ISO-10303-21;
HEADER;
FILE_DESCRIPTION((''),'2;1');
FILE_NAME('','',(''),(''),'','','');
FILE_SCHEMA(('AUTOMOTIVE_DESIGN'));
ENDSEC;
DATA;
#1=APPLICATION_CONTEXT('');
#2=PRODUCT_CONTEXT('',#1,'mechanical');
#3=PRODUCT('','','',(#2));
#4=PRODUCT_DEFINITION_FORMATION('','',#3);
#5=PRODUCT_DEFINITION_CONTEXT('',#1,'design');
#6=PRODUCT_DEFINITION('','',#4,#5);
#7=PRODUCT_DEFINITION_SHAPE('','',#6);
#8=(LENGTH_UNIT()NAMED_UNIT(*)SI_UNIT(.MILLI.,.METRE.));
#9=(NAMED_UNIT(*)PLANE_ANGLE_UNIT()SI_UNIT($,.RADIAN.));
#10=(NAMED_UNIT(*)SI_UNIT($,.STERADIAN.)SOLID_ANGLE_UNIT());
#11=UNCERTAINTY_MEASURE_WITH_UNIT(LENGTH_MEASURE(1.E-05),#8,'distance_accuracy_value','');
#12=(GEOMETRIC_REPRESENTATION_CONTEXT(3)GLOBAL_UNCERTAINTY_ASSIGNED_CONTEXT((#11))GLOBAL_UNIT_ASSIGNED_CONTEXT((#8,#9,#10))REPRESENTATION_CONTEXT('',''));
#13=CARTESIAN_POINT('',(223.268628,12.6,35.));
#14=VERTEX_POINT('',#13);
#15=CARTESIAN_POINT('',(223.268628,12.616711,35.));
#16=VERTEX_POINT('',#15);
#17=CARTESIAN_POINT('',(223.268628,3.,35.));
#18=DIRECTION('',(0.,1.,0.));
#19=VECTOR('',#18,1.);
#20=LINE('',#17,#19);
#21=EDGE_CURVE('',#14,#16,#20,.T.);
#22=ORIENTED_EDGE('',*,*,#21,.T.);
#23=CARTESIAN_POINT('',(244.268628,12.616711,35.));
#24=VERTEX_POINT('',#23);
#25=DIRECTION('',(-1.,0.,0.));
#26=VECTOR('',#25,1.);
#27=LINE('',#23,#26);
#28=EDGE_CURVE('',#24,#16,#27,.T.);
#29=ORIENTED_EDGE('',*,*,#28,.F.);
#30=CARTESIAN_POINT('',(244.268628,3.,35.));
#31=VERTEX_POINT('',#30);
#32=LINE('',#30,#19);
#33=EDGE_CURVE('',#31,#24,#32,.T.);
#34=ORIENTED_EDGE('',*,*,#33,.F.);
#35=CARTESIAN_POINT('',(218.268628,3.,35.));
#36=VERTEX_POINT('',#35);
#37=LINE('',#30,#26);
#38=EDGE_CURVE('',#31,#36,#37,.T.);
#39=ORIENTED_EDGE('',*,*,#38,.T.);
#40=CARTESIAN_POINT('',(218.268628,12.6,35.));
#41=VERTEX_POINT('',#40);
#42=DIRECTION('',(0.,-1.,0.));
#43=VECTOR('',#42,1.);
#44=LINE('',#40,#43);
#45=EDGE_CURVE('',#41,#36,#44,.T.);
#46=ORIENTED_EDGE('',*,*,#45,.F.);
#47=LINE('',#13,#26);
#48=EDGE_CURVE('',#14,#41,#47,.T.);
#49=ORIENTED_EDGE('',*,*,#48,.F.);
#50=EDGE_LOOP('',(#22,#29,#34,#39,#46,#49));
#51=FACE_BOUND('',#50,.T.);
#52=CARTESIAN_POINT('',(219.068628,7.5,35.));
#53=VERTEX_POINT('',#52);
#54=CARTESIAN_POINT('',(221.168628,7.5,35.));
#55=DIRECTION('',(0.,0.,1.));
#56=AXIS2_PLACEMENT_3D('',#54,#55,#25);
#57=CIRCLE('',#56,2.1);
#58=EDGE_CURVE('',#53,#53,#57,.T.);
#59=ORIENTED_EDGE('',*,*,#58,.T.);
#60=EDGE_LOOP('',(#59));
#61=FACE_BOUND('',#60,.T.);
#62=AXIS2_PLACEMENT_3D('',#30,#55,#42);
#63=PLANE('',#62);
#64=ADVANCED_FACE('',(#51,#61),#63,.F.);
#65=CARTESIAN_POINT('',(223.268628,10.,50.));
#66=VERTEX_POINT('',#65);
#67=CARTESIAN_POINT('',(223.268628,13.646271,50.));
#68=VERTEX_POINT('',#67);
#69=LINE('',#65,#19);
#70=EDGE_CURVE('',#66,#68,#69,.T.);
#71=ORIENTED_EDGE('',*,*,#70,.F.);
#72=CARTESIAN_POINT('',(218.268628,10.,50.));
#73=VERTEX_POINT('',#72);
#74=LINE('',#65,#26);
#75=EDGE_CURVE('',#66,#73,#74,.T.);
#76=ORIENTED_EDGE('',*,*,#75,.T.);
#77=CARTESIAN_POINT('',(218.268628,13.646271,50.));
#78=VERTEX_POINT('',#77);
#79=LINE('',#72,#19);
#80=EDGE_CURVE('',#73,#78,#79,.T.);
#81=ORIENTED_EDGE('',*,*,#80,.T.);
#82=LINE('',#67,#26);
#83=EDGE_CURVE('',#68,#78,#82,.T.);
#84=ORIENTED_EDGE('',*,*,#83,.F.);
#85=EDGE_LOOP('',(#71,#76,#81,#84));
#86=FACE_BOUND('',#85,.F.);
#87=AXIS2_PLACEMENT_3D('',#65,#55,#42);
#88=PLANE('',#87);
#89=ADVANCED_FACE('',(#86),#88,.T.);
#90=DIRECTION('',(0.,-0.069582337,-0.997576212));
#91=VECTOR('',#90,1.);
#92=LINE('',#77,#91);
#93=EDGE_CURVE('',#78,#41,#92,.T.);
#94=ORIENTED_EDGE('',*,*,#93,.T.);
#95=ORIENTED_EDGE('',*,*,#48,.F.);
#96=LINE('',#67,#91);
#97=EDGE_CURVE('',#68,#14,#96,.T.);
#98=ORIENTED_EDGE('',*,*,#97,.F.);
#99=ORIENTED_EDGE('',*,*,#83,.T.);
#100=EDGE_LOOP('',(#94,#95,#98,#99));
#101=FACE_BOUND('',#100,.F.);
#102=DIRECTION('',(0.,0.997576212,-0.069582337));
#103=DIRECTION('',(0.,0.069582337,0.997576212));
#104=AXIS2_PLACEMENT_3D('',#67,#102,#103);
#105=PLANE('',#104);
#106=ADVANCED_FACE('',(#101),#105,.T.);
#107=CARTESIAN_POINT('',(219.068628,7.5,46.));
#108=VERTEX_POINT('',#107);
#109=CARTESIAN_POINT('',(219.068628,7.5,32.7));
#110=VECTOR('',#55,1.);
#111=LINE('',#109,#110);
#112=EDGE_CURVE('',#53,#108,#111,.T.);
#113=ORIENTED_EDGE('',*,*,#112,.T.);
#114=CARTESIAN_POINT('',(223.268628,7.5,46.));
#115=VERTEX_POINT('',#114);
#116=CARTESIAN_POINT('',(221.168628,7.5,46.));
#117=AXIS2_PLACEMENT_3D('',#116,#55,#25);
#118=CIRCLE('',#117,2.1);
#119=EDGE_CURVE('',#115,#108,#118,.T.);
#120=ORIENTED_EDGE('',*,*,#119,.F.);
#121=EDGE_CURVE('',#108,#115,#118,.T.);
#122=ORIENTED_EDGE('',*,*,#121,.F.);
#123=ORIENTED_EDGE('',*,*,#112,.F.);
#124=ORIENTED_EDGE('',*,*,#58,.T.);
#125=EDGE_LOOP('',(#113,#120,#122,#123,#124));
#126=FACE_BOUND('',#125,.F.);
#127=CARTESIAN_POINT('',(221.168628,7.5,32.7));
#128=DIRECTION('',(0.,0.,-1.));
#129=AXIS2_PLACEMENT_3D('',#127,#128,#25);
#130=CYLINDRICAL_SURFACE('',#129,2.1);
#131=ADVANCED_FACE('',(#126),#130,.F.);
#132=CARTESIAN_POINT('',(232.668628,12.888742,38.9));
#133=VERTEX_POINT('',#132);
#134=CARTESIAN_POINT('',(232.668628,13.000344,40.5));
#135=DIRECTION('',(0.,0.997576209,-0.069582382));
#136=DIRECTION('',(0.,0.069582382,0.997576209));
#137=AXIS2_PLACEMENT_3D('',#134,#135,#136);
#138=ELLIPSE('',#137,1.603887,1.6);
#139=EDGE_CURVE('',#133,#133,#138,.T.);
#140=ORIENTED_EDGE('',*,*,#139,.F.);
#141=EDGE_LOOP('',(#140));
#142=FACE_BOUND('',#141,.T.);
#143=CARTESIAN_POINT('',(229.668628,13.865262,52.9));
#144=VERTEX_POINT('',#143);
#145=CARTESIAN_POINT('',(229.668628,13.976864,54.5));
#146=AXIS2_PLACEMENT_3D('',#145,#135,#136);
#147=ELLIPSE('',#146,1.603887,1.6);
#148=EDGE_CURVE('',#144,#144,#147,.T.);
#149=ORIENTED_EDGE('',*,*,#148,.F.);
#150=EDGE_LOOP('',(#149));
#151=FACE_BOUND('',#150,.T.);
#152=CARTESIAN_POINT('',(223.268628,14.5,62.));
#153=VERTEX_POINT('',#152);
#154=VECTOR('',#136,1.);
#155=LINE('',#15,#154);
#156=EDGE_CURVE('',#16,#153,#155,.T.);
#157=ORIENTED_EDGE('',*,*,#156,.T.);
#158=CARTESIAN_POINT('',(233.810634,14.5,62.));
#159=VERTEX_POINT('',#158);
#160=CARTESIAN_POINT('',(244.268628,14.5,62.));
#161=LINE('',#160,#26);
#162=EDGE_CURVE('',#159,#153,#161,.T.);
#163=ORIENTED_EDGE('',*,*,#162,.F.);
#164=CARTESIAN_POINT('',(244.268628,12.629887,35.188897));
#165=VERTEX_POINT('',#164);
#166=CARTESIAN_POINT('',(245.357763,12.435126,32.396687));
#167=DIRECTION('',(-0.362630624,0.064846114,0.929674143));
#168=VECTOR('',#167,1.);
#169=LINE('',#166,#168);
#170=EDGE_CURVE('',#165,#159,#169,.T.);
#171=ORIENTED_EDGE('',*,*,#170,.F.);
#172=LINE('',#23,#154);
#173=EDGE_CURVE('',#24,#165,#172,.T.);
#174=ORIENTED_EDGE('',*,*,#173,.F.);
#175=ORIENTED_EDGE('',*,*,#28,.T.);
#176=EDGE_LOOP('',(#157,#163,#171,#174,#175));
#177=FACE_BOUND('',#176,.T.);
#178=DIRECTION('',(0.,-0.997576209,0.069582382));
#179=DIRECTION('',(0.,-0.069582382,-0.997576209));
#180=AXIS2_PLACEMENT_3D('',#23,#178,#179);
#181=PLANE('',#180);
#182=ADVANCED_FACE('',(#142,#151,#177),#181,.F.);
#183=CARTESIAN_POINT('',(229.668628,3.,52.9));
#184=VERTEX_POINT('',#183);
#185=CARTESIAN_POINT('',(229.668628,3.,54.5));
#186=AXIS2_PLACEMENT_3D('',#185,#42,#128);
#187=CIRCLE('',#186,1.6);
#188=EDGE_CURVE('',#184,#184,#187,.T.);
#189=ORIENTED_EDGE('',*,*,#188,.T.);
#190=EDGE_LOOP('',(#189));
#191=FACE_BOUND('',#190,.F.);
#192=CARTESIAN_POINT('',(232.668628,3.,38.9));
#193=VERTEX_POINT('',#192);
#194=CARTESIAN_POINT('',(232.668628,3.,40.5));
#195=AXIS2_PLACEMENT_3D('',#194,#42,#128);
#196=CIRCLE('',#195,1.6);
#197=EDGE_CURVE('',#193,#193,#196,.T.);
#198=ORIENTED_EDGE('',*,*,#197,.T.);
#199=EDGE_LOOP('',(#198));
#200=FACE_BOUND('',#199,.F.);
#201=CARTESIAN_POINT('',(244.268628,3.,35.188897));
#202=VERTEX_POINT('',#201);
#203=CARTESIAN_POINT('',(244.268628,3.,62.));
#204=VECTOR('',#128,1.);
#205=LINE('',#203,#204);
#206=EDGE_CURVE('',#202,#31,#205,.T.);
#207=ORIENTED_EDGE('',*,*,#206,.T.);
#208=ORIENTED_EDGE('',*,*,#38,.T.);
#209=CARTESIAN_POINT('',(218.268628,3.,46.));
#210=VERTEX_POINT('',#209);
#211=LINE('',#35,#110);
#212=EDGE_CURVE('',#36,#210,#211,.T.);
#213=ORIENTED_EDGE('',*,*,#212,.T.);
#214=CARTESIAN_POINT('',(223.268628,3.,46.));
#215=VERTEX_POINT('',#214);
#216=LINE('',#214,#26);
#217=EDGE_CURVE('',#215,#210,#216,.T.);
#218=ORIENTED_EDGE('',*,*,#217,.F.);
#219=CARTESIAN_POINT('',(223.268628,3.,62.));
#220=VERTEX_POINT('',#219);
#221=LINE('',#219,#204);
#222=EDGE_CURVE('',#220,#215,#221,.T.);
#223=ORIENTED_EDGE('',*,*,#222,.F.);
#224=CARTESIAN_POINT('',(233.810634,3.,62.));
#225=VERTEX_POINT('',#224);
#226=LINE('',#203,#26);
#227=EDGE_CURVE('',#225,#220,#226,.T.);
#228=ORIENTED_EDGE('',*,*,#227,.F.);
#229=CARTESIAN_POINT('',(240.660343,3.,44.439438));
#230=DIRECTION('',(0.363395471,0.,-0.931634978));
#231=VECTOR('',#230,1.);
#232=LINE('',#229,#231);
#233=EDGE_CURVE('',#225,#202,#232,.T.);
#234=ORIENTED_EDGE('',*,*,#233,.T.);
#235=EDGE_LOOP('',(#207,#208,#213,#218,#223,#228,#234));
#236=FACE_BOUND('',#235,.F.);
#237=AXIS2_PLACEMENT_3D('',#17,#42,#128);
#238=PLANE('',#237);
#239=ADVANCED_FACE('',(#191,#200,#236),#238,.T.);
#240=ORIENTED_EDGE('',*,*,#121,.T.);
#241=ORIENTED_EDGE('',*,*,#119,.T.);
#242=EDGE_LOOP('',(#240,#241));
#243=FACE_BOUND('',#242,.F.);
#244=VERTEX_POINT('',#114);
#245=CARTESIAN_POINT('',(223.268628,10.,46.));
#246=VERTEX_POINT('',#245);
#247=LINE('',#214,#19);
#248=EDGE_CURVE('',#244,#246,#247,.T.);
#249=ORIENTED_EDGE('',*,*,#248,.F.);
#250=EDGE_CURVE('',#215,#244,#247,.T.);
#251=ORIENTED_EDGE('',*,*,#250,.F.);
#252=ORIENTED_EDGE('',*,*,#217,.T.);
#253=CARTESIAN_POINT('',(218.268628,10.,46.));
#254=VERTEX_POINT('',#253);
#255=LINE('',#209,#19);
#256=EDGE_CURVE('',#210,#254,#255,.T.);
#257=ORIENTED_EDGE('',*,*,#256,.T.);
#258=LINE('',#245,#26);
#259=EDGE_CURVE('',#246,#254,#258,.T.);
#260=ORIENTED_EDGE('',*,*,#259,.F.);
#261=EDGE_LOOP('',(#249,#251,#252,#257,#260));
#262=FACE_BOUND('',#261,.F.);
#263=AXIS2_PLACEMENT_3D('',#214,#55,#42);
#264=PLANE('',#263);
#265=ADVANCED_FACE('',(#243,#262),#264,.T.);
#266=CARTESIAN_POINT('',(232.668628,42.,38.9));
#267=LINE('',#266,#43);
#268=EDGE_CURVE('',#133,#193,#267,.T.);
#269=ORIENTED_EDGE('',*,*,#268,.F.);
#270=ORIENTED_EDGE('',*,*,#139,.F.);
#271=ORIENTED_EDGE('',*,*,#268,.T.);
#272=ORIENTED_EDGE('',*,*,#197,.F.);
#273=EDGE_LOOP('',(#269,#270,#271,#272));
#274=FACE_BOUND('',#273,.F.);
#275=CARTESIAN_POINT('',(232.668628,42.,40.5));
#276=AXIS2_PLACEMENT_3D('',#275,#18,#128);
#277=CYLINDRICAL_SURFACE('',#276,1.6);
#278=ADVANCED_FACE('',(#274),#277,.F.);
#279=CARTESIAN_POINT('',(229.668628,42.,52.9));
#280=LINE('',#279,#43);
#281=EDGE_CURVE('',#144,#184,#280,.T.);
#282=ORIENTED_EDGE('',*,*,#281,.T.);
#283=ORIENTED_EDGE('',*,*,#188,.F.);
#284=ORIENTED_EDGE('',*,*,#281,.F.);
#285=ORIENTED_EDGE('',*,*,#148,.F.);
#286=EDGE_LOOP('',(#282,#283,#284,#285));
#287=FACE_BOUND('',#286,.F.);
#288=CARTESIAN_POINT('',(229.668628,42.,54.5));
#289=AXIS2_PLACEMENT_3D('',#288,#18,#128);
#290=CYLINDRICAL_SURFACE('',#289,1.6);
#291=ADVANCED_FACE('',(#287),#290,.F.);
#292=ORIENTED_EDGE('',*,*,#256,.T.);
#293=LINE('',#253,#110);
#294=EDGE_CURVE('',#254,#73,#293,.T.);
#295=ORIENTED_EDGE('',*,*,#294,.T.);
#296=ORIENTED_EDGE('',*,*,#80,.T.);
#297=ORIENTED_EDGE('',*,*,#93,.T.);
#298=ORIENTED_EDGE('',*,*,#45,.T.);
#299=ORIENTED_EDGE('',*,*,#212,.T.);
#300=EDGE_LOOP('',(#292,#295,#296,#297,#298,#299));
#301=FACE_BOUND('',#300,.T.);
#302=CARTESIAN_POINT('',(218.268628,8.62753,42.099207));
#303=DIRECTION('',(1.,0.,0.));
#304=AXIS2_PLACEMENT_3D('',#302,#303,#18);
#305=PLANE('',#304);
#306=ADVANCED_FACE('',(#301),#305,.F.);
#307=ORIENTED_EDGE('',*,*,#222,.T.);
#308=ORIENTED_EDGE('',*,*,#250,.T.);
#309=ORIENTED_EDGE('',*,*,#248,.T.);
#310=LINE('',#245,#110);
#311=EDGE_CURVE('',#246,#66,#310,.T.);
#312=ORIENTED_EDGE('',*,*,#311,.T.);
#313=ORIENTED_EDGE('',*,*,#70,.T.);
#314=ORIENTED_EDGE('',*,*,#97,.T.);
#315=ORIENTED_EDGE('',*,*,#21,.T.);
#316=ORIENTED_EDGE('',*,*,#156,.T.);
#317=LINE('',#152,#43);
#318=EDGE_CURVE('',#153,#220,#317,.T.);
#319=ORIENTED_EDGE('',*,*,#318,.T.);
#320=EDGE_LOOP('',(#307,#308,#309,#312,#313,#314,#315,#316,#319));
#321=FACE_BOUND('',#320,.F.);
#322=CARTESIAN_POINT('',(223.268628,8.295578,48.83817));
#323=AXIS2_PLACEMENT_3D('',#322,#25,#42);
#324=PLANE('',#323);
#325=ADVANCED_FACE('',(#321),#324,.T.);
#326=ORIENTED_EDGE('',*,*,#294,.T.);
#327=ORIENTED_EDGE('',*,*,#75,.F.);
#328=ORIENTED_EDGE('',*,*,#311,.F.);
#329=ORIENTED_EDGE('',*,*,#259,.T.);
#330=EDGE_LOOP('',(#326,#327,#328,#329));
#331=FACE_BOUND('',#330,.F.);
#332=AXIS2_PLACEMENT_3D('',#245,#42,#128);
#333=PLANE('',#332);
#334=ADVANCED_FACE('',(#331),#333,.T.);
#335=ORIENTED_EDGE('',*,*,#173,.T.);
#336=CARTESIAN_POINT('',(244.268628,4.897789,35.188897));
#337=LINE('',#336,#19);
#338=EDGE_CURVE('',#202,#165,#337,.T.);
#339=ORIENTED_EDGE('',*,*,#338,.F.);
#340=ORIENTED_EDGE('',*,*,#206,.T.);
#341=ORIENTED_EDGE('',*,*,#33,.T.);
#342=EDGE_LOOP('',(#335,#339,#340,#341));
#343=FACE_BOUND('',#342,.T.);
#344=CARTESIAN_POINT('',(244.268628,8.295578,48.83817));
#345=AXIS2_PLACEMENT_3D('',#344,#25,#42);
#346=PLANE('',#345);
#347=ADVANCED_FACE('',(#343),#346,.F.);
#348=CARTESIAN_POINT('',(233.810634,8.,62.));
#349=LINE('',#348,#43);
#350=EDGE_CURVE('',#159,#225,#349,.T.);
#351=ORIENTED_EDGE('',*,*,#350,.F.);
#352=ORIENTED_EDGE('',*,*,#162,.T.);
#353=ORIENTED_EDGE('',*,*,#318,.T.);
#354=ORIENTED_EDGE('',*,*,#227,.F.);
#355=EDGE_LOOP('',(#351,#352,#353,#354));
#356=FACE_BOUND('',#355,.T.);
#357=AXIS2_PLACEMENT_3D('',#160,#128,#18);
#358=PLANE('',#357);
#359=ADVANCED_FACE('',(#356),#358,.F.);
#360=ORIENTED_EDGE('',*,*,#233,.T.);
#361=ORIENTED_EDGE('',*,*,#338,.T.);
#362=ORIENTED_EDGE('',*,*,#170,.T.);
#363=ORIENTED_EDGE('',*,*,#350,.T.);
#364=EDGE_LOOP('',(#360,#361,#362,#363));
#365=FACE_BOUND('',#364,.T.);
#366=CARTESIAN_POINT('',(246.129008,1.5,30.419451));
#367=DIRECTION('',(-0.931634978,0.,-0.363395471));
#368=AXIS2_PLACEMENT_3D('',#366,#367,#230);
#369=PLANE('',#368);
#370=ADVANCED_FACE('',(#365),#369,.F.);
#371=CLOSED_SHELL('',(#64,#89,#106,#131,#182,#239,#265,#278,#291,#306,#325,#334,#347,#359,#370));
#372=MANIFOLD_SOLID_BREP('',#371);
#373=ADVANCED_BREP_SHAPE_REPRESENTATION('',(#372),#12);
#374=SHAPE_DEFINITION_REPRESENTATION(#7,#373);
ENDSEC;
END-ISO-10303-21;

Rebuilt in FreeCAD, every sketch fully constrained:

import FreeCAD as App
import Part
import Sketcher
Q = App.Units.Quantity


def add_polygon(sketch, points):
    """Adds a closed chain of lines whose ends are joined by coincident constraints."""
    first, n = sketch.GeometryCount, len(points)
    for a, b in zip(points, points[1:] + points[:1]):
        sketch.addGeometry(Part.LineSegment(App.Vector(*a, 0), App.Vector(*b, 0)), False)
    for i in range(n):
        sketch.addConstraint(Sketcher.Constraint("Coincident", first + i, 2, first + (i + 1) % n, 1))

doc = App.newDocument("Part")
params = doc.addObject("Spreadsheet::Sheet", "Params")
for row, (alias, value) in enumerate([
    ("sketch1_diameter", "3.2 mm"),
    ("pad1_length", "40 mm"),
    ("sketch2_diameter", "3.2 mm"),
    ("pad2_length", "40 mm"),
    ("sketch3_diameter", "4.2 mm"),
    ("pad3_length", "19 mm"),
    ("sketch4_width", "7 mm"),
    ("sketch4_height", "11 mm"),
    ("sketch4_height2", "4 mm"),
    ("sketch4_width2", "9.6 mm"),
    ("pad4_length", "5 mm"),
    ("pad5_length", "15 mm"),
    ("sketch6_height", "27 mm"),
    ("sketch6_width", "11.5 mm"),
    ("pad6_length", "21 mm"),
], start=1):
    params.set(f"A{row}", alias)
    params.set(f"B{row}", "=" + value)
    params.setAlias(f"B{row}", alias)

body = doc.addObject("PartDesign::Body", "Body")

sketch1 = doc.addObject("Sketcher::SketchObject", "Sketch")
body.addObject(sketch1)
sketch1.AttachmentSupport = (doc.XZ_Plane, [""])
sketch1.MapMode = "FlatFace"
sketch1.AttachmentOffset = App.Placement(App.Vector(0, 0, -42), App.Rotation())
sketch1.addGeometry(Part.Circle(App.Vector(5.3, 40.5, 0), App.Vector(0, 0, 1), 1.6), False)
sketch1.addConstraint(Sketcher.Constraint("Diameter", 0, Q("3.2 mm")))
sketch1.addConstraint(Sketcher.Constraint("DistanceX", -1, 1, 0, 3, Q("5.3 mm")))
sketch1.addConstraint(Sketcher.Constraint("DistanceY", -1, 1, 0, 3, Q("40.5 mm")))
sketch1.setExpression("Constraints[0]", "Params.sketch1_diameter")
pad1 = doc.addObject("PartDesign::Pad", "Pad")
body.addObject(pad1)
pad1.Profile = sketch1
pad1.setExpression("Length", "Params.pad1_length")
body2 = doc.addObject("PartDesign::Body", "Body001")

sketch2 = doc.addObject("Sketcher::SketchObject", "Sketch001")
body2.addObject(sketch2)
sketch2.AttachmentSupport = (doc.getObject("XZ_Plane001"), [""])
sketch2.MapMode = "FlatFace"
sketch2.AttachmentOffset = App.Placement(App.Vector(0, 0, -42), App.Rotation())
sketch2.addGeometry(Part.Circle(App.Vector(8.3, 54.5, 0), App.Vector(0, 0, 1), 1.6), False)
sketch2.addConstraint(Sketcher.Constraint("Diameter", 0, Q("3.2 mm")))
sketch2.addConstraint(Sketcher.Constraint("DistanceX", -1, 1, 0, 3, Q("8.3 mm")))
sketch2.addConstraint(Sketcher.Constraint("DistanceY", -1, 1, 0, 3, Q("54.5 mm")))
sketch2.setExpression("Constraints[0]", "Params.sketch2_diameter")
pad2 = doc.addObject("PartDesign::Pad", "Pad001")
body2.addObject(pad2)
pad2.Profile = sketch2
pad2.setExpression("Length", "Params.pad2_length")
body3 = doc.addObject("PartDesign::Body", "Body002")

sketch3 = doc.addObject("Sketcher::SketchObject", "Sketch002")
body3.addObject(sketch3)
sketch3.AttachmentSupport = (doc.getObject("XY_Plane002"), [""])
sketch3.MapMode = "FlatFace"
sketch3.AttachmentOffset = App.Placement(App.Vector(0, 0, 32.7), App.Rotation())
sketch3.addGeometry(Part.Circle(App.Vector(16.8, 7.5, 0), App.Vector(0, 0, 1), 2.1), False)
sketch3.addConstraint(Sketcher.Constraint("Diameter", 0, Q("4.2 mm")))
sketch3.addConstraint(Sketcher.Constraint("DistanceX", -1, 1, 0, 3, Q("16.8 mm")))
sketch3.addConstraint(Sketcher.Constraint("DistanceY", -1, 1, 0, 3, Q("7.5 mm")))
sketch3.setExpression("Constraints[0]", "Params.sketch3_diameter")
pad3 = doc.addObject("PartDesign::Pad", "Pad002")
body3.addObject(pad3)
pad3.Profile = sketch3
pad3.setExpression("Length", "Params.pad3_length")
body4 = doc.addObject("PartDesign::Body", "Body003")

sketch4 = doc.addObject("Sketcher::SketchObject", "Sketch003")
body4.addObject(sketch4)
sketch4.AttachmentSupport = (doc.getObject("YZ_Plane003"), [""])
sketch4.MapMode = "FlatFace"
add_polygon(sketch4, [(10, 46), (3, 46), (3, 35), (12.6, 35), (13.646271, 50), (10, 50)])
sketch4.addConstraint(Sketcher.Constraint("Horizontal", 0))
sketch4.addConstraint(Sketcher.Constraint("Vertical", 1))
sketch4.addConstraint(Sketcher.Constraint("Horizontal", 2))
sketch4.addConstraint(Sketcher.Constraint("Horizontal", 4))
sketch4.addConstraint(Sketcher.Constraint("Vertical", 5))
sketch4.addConstraint(Sketcher.Constraint("DistanceX", 0, 2, 0, 1, Q("7 mm")))
sketch4.addConstraint(Sketcher.Constraint("DistanceY", 1, 2, 1, 1, Q("11 mm")))
sketch4.addConstraint(Sketcher.Constraint("DistanceY", 5, 2, 5, 1, Q("4 mm")))
sketch4.addConstraint(Sketcher.Constraint("DistanceX", 2, 1, 2, 2, Q("9.6 mm")))
sketch4.addConstraint(Sketcher.Constraint("DistanceX", -1, 1, 0, 2, Q("3 mm")))
sketch4.addConstraint(Sketcher.Constraint("DistanceY", -1, 1, 0, 2, Q("46 mm")))
sketch4.addConstraint(Sketcher.Constraint("Angle", 3, Q("86.010002 deg")))
sketch4.setExpression("Constraints[11]", "Params.sketch4_width")
sketch4.setExpression("Constraints[12]", "Params.sketch4_height")
sketch4.setExpression("Constraints[13]", "Params.sketch4_height2")
sketch4.setExpression("Constraints[14]", "Params.sketch4_width2")
pad4 = doc.addObject("PartDesign::Pad", "Pad003")
body4.addObject(pad4)
pad4.Profile = sketch4
pad4.setExpression("Length", "Params.pad4_length")
body5 = doc.addObject("PartDesign::Body", "Body004")
doc.recompute()

body4.Placement = App.Placement(App.Vector(14.7, 0, 0), App.Rotation(App.Vector(0, 0, 1), 0))
boolean = doc.addObject("PartDesign::Boolean", "Boolean")
body5.addObject(boolean)
boolean.Type = "Fuse"
boolean.addObjects([body4])
doc.recompute()

boolean2 = doc.addObject("PartDesign::Boolean", "Boolean001")
body5.addObject(boolean2)
boolean2.Type = "Cut"
boolean2.addObjects([body3])
body6 = doc.addObject("PartDesign::Body", "Body005")

sketch5 = doc.addObject("Sketcher::SketchObject", "Sketch004")
body6.addObject(sketch5)
sketch5.AttachmentSupport = (doc.getObject("XZ_Plane005"), [""])
sketch5.MapMode = "FlatFace"
add_polygon(sketch5, [(-8.16038, 62.64716), (-8.16038, 30.419451), (4.410427, 62.64716)])
sketch5.addConstraint(Sketcher.Constraint("Vertical", 0))
sketch5.addConstraint(Sketcher.Constraint("Horizontal", 2))
sketch5.addConstraint(Sketcher.Constraint("DistanceY", 0, 2, 0, 1, Q("32.227709 mm")))
sketch5.addConstraint(Sketcher.Constraint("DistanceX", 2, 2, 2, 1, Q("12.570807 mm")))
sketch5.addConstraint(Sketcher.Constraint("DistanceX", 0, 2, -1, 1, Q("8.16038 mm")))
sketch5.addConstraint(Sketcher.Constraint("DistanceY", -1, 1, 0, 2, Q("30.419451 mm")))
pad5 = doc.addObject("PartDesign::Pad", "Pad004")
body6.addObject(pad5)
pad5.Profile = sketch5
pad5.setExpression("Length", "Params.pad5_length")
pad5.Reversed = True
body7 = doc.addObject("PartDesign::Body", "Body006")
doc.recompute()

body6.Placement = App.Placement(App.Vector(0, 1.5, 0), App.Rotation(App.Vector(0, 0, 1), 0))
boolean3 = doc.addObject("PartDesign::Boolean", "Boolean002")
body7.addObject(boolean3)
boolean3.Type = "Fuse"
boolean3.addObjects([body6])
body8 = doc.addObject("PartDesign::Body", "Body007")

sketch6 = doc.addObject("Sketcher::SketchObject", "Sketch005")
body8.addObject(sketch6)
sketch6.AttachmentSupport = (doc.getObject("YZ_Plane007"), [""])
sketch6.MapMode = "FlatFace"
add_polygon(sketch6, [(3, 62), (3, 35), (12.616711, 35), (14.5, 62)])
sketch6.addConstraint(Sketcher.Constraint("Vertical", 0))
sketch6.addConstraint(Sketcher.Constraint("Horizontal", 1))
sketch6.addConstraint(Sketcher.Constraint("Horizontal", 3))
sketch6.addConstraint(Sketcher.Constraint("DistanceY", 0, 2, 0, 1, Q("27 mm")))
sketch6.addConstraint(Sketcher.Constraint("DistanceX", 3, 2, 3, 1, Q("11.5 mm")))
sketch6.addConstraint(Sketcher.Constraint("DistanceX", -1, 1, 0, 2, Q("3 mm")))
sketch6.addConstraint(Sketcher.Constraint("DistanceY", -1, 1, 0, 2, Q("35 mm")))
sketch6.addConstraint(Sketcher.Constraint("Angle", 2, Q("86.009999 deg")))
sketch6.setExpression("Constraints[7]", "Params.sketch6_height")
sketch6.setExpression("Constraints[8]", "Params.sketch6_width")
pad6 = doc.addObject("PartDesign::Pad", "Pad005")
body8.addObject(pad6)
pad6.Profile = sketch6
pad6.setExpression("Length", "Params.pad6_length")
body9 = doc.addObject("PartDesign::Body", "Body008")
doc.recompute()

body8.Placement = App.Placement(App.Vector(-6.3, 0, 0), App.Rotation(App.Vector(0, 0, 1), 0))
boolean4 = doc.addObject("PartDesign::Boolean", "Boolean003")
body9.addObject(boolean4)
boolean4.Type = "Fuse"
boolean4.addObjects([body8])
doc.recompute()

boolean5 = doc.addObject("PartDesign::Boolean", "Boolean004")
body9.addObject(boolean5)
boolean5.Type = "Cut"
boolean5.addObjects([body7])
doc.recompute()

boolean6 = doc.addObject("PartDesign::Boolean", "Boolean005")
body9.addObject(boolean6)
boolean6.Type = "Fuse"
boolean6.addObjects([body5])
doc.recompute()

boolean7 = doc.addObject("PartDesign::Boolean", "Boolean006")
body9.addObject(boolean7)
boolean7.Type = "Cut"
boolean7.addObjects([body2])
doc.recompute()

boolean8 = doc.addObject("PartDesign::Boolean", "Boolean007")
body9.addObject(boolean8)
boolean8.Type = "Cut"
boolean8.addObjects([body])
body10 = doc.addObject("PartDesign::Body", "Body009")
doc.recompute()

mirroring = doc.addObject("Part::Mirroring", "Mirroring")
mirroring.Source = body9
mirroring.Base = App.Vector(118.984314, 8.749394, 41.218285)
mirroring.Normal = App.Vector(1, 0, 0)
body10.BaseFeature = mirroring
doc.recompute()
body9.Visibility = False
mirroring.Visibility = False

doc.recompute()
